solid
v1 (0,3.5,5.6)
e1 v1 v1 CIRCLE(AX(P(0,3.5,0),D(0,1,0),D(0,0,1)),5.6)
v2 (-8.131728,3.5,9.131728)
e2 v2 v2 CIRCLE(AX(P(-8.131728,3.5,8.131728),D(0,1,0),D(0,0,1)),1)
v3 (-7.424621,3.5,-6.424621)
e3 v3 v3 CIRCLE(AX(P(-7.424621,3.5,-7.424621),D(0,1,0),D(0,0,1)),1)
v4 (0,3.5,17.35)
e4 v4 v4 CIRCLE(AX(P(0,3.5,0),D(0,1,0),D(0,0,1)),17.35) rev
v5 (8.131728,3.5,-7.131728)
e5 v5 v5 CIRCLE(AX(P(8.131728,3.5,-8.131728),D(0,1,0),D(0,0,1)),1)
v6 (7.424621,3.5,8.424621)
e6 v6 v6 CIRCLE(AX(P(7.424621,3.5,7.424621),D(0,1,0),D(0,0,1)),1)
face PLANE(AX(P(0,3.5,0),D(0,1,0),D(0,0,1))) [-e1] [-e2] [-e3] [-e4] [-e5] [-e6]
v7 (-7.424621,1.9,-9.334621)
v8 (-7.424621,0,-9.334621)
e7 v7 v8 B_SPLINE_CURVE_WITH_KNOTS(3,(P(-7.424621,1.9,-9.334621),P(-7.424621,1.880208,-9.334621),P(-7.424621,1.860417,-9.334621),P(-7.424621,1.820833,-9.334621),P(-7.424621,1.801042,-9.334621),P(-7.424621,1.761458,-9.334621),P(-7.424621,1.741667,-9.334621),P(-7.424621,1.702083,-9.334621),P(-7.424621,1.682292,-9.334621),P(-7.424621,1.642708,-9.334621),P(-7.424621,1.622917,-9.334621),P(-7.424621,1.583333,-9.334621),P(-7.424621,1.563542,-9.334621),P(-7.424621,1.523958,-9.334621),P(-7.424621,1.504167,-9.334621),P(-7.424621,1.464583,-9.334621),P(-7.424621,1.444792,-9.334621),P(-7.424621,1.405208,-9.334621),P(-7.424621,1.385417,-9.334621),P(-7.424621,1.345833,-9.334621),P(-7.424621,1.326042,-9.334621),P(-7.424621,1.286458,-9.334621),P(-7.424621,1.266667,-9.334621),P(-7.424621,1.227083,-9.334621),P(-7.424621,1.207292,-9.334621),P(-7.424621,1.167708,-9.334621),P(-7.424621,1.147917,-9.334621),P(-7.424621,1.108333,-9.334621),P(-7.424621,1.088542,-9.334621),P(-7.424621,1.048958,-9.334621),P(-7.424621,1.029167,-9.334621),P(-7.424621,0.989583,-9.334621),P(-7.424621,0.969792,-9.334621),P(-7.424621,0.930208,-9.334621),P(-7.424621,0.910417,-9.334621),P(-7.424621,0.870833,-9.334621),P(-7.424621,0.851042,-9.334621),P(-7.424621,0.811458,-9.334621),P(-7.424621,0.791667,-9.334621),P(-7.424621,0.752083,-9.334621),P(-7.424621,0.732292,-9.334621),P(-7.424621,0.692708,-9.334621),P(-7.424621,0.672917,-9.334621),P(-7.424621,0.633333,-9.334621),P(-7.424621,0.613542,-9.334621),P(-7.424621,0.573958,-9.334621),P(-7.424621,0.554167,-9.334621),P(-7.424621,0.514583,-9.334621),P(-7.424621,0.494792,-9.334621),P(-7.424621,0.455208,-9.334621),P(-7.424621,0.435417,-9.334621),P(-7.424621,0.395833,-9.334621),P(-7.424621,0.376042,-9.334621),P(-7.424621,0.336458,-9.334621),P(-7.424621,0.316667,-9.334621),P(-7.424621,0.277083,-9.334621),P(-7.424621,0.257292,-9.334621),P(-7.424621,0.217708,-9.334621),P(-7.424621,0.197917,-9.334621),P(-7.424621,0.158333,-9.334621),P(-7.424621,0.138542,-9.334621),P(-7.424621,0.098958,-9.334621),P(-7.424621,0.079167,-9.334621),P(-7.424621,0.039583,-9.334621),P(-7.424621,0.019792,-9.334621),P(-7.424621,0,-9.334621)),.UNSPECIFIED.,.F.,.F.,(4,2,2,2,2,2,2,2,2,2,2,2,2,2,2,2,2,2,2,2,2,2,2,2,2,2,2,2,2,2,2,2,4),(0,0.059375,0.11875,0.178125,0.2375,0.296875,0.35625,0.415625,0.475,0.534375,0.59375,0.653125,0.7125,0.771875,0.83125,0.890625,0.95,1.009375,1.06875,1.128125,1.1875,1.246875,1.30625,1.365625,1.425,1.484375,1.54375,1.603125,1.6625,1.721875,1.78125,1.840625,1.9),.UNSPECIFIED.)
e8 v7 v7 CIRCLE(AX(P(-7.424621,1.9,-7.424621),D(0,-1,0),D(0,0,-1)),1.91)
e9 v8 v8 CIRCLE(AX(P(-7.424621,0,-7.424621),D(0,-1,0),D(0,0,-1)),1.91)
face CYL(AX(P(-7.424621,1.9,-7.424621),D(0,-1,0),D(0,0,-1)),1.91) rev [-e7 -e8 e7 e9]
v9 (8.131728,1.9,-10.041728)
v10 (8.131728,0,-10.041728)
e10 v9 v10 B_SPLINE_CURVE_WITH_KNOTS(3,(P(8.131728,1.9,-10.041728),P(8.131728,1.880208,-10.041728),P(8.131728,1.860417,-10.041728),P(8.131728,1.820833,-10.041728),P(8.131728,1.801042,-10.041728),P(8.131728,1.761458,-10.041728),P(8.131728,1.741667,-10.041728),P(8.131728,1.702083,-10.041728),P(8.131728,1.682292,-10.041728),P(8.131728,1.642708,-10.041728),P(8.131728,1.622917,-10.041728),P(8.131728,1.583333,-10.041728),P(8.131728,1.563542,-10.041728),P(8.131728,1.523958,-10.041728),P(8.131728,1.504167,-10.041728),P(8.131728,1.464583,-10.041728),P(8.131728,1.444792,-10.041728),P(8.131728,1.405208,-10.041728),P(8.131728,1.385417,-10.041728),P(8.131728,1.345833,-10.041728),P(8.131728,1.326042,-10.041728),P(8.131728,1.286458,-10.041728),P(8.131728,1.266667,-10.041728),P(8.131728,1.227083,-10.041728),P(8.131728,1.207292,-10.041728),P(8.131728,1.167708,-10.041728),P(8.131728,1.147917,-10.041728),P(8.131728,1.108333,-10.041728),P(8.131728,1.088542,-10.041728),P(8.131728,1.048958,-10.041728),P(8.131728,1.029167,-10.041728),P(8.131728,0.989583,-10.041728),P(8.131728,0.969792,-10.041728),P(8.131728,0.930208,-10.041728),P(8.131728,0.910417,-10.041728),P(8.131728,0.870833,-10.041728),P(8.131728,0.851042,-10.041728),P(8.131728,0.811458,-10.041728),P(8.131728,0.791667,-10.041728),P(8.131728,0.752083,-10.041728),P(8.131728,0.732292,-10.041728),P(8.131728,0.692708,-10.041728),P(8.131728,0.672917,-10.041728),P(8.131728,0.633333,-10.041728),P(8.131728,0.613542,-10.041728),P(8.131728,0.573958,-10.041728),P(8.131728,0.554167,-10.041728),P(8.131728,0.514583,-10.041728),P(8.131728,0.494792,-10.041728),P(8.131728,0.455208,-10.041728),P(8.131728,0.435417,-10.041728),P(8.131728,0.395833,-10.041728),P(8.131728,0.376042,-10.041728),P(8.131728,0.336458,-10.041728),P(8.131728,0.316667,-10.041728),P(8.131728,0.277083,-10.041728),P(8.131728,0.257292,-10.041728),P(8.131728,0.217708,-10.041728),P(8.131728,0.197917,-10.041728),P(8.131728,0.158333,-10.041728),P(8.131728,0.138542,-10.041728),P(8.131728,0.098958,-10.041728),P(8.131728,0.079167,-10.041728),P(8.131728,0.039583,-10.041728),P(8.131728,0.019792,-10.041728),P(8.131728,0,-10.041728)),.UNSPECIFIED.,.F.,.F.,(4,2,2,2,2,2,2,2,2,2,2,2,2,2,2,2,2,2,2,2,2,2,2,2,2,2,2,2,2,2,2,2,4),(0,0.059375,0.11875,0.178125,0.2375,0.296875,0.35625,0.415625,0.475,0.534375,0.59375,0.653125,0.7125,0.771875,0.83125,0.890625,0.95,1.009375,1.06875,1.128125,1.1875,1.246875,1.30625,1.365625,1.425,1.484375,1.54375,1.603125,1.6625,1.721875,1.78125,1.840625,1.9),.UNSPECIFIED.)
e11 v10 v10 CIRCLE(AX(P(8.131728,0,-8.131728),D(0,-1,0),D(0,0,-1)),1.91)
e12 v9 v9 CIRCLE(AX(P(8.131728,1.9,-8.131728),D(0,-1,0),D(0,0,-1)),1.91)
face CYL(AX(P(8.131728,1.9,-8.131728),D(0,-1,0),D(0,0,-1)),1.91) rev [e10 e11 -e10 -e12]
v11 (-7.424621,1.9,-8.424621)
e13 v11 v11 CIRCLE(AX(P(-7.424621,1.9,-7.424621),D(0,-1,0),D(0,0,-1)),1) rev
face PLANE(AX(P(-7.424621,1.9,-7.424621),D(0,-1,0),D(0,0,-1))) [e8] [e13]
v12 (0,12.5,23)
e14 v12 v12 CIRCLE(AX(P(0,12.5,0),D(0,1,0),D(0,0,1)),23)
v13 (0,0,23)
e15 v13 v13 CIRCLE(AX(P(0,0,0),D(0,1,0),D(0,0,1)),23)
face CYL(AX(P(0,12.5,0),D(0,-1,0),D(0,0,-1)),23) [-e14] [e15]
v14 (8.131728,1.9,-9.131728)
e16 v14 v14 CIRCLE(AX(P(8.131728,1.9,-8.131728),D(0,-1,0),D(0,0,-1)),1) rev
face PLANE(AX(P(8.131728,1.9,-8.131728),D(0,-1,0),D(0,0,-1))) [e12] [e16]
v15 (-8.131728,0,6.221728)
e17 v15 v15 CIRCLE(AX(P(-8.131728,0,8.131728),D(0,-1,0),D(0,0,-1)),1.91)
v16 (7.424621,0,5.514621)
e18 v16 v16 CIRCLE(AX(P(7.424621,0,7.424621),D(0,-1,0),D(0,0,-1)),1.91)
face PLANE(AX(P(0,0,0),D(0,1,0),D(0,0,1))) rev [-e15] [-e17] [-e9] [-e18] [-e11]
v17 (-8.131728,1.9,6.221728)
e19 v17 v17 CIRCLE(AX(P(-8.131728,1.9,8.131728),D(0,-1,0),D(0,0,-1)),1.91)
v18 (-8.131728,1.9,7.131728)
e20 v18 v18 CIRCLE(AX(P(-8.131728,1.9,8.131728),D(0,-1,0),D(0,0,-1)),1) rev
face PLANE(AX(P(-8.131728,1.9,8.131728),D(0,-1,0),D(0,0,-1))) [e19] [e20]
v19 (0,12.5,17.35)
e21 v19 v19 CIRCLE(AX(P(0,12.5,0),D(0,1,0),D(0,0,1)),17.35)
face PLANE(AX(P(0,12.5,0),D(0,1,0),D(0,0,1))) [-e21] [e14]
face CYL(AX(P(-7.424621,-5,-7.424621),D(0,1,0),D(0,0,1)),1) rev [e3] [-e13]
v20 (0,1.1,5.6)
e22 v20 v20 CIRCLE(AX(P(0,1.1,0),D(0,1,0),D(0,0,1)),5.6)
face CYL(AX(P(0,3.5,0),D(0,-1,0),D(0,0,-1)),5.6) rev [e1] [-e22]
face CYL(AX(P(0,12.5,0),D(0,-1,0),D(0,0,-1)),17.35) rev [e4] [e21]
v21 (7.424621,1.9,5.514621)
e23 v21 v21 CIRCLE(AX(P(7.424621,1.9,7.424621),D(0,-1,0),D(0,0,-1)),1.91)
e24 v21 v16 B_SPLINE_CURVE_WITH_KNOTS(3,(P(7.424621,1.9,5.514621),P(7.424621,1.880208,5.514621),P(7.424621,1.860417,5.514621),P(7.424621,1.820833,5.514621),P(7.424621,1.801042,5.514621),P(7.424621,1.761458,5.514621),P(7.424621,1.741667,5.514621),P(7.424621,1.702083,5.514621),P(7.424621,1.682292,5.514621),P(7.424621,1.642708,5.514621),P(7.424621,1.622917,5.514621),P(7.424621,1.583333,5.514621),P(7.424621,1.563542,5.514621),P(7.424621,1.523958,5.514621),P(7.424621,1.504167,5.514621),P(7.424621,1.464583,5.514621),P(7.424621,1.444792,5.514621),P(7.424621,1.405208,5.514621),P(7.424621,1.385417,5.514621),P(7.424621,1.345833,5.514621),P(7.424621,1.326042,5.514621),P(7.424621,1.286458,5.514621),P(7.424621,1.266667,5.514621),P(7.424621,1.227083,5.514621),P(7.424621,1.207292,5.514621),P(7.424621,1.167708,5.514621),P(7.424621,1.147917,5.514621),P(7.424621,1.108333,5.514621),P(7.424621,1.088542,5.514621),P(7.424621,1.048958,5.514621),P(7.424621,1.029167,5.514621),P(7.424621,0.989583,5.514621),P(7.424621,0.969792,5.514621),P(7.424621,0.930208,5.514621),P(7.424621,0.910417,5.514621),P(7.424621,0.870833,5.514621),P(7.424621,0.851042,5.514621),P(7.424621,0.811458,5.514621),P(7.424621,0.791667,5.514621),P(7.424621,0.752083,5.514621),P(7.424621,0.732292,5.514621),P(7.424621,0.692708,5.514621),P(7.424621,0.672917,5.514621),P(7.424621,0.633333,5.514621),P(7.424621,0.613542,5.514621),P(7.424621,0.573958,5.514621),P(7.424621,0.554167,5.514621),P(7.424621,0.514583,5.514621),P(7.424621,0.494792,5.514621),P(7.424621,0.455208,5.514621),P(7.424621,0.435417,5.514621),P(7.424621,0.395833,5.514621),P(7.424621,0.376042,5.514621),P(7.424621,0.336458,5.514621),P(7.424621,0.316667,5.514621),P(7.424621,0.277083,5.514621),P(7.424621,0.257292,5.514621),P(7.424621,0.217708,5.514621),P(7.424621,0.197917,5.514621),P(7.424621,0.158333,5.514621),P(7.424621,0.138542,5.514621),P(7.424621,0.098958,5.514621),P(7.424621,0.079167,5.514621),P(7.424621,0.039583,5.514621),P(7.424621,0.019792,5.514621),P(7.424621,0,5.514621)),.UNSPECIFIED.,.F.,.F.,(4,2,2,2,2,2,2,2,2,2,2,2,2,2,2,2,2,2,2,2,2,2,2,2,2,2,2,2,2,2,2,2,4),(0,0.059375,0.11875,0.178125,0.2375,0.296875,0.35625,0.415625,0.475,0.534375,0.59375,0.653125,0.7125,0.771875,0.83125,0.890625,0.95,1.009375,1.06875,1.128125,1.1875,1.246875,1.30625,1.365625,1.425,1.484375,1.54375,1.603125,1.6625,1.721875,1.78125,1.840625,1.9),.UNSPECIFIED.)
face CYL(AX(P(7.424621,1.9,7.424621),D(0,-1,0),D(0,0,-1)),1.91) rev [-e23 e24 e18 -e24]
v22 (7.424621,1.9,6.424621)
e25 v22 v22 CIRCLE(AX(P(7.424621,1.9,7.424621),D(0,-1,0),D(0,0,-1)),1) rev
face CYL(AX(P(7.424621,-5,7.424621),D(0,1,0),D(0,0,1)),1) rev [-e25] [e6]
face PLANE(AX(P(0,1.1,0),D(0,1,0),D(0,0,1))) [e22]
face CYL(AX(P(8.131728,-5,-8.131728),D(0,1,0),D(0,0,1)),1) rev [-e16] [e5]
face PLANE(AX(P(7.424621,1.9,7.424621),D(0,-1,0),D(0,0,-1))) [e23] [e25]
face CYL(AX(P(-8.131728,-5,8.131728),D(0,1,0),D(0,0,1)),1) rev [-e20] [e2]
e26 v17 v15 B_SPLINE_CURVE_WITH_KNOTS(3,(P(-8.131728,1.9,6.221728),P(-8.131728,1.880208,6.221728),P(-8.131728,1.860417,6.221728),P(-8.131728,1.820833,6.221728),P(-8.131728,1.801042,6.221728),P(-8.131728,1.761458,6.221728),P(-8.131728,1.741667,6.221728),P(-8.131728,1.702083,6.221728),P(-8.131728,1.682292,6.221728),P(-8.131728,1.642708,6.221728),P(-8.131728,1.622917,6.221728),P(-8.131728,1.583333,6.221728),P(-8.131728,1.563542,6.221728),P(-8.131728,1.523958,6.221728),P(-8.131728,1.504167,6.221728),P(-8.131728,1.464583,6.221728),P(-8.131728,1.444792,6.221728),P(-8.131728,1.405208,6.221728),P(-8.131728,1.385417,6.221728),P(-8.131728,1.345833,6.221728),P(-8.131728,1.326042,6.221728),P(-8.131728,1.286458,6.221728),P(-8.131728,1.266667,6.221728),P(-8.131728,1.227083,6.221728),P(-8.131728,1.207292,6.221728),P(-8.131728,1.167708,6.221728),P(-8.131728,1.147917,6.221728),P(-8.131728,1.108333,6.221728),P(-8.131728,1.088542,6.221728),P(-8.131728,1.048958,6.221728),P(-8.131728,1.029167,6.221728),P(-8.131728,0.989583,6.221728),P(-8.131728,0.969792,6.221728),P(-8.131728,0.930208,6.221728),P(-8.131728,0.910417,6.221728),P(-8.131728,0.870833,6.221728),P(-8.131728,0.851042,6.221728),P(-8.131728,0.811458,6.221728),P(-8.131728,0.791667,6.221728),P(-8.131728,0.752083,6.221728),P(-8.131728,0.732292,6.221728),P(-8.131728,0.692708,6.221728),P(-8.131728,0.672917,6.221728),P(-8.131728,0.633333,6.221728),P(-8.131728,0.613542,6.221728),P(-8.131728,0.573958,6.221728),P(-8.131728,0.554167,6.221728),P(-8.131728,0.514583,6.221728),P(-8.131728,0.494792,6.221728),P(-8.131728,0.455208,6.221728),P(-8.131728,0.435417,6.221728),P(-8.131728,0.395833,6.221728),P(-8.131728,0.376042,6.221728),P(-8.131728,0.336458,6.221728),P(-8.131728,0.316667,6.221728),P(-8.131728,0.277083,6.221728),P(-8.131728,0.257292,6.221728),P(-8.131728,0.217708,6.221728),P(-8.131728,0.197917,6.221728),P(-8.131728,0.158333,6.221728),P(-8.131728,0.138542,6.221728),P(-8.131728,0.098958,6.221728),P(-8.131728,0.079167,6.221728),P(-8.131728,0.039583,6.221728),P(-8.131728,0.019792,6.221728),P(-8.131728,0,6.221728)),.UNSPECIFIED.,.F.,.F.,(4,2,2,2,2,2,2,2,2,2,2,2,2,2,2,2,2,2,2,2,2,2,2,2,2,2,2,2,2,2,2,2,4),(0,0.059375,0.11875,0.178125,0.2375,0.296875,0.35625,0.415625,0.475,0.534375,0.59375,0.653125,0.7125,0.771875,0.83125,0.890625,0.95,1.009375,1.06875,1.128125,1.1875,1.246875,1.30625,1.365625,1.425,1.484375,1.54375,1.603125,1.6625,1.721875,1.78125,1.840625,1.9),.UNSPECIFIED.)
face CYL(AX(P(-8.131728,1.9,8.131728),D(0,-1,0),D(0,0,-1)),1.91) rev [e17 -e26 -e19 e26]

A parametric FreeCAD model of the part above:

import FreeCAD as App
import Part
import Sketcher

V = App.Vector
Q = App.Units.Quantity

doc = App.newDocument("Part")
body = doc.addObject("PartDesign::Body", "Body")

# Sketch on XZ plane
sketch1 = doc.addObject("Sketcher::SketchObject", "Sketch")
body.addObject(sketch1)
sketch1.AttachmentSupport = (doc.XZ_Plane, [""])
sketch1.MapMode = "FlatFace"
sketch1.addGeometry([
    Part.Circle(V(0, 0, 0), V(0, 0, 1), 17.35),
    Part.Circle(V(0, 0, 0), V(0, 0, 1), 5.6),
], False)
sketch1.addConstraint([
    Sketcher.Constraint("Coincident", 0, 3, -1, 1),
    Sketcher.Constraint("Coincident", 1, 3, -1, 1),
    Sketcher.Constraint("Diameter", 0, Q("34.7 mm")),
    Sketcher.Constraint("Diameter", 1, Q("11.2 mm")),
])
pad1 = doc.addObject("PartDesign::Pad", "Pad")
body.addObject(pad1)
pad1.Profile = sketch1
pad1.Length = 3.5
pad1.Reversed = True

# Sketch on XZ plane
sketch2 = doc.addObject("Sketcher::SketchObject", "Sketch001")
body.addObject(sketch2)
sketch2.AttachmentSupport = (doc.XZ_Plane, [""])
sketch2.MapMode = "FlatFace"
sketch2.addGeometry([
    Part.Circle(V(0, 0, 0), V(0, 0, 1), 23),
    Part.Circle(V(0, 0, 0), V(0, 0, 1), 17.35),
], False)
sketch2.addConstraint([
    Sketcher.Constraint("Coincident", 0, 3, -1, 1),
    Sketcher.Constraint("Coincident", 1, 3, -1, 1),
    Sketcher.Constraint("Diameter", 0, Q("46 mm")),
    Sketcher.Constraint("Diameter", 1, Q("34.7 mm")),
])
pad2 = doc.addObject("PartDesign::Pad", "Pad001")
body.addObject(pad2)
pad2.Profile = sketch2
pad2.Length = 12.5
pad2.Reversed = True

# Sketch on XZ plane
sketch3 = doc.addObject("Sketcher::SketchObject", "Sketch002")
body.addObject(sketch3)
sketch3.AttachmentSupport = (doc.XZ_Plane, [""])
sketch3.MapMode = "FlatFace"
sketch3.addGeometry(Part.Circle(V(0, 0, 0), V(0, 0, 1), 5.6), False)
sketch3.addConstraint([
    Sketcher.Constraint("Coincident", 0, 3, -1, 1),
    Sketcher.Constraint("Diameter", 0, Q("11.2 mm")),
])
pad3 = doc.addObject("PartDesign::Pad", "Pad002")
body.addObject(pad3)
pad3.Profile = sketch3
pad3.Length = 1.1
pad3.Reversed = True

# Sketch on XZ plane
sketch4 = doc.addObject("Sketcher::SketchObject", "Sketch003")
body.addObject(sketch4)
sketch4.AttachmentSupport = (doc.XZ_Plane, [""])
sketch4.MapMode = "FlatFace"
sketch4.addGeometry([
    Part.Circle(V(8.131728, -8.131728, 0), V(0, 0, 1), 1),
    Part.Circle(V(7.424621, 7.424621, 0), V(0, 0, 1), 1),
    Part.Circle(V(-8.131728, 8.131728, 0), V(0, 0, 1), 1),
    Part.Circle(V(-7.424621, -7.424621, 0), V(0, 0, 1), 1),
], False)
sketch4.addConstraint([
    Sketcher.Constraint("Equal", 0, 1),
    Sketcher.Constraint("Equal", 1, 2),
    Sketcher.Constraint("Equal", 2, 3),
    Sketcher.Constraint("Symmetric", 0, 3, 2, 3, -1, 1),
    Sketcher.Constraint("Symmetric", 1, 3, 3, 3, -1, 1),
    Sketcher.Constraint("Diameter", 0, Q("2 mm")),
    Sketcher.Constraint("DistanceX", -1, 1, 1, 3, Q("7.424621 mm")),
    Sketcher.Constraint("DistanceY", -1, 1, 1, 3, Q("7.424621 mm")),
    Sketcher.Constraint("DistanceY", 0, 3, 1, 3, Q("15.556349 mm")),
    Sketcher.Constraint("DistanceX", 2, 3, 1, 3, Q("15.556349 mm")),
])
pocket1 = doc.addObject("PartDesign::Pocket", "Pocket")
body.addObject(pocket1)
pocket1.Profile = sketch4
pocket1.Length = 10
pocket1.Midplane = True

# Sketch on XZ plane
sketch5 = doc.addObject("Sketcher::SketchObject", "Sketch004")
body.addObject(sketch5)
sketch5.AttachmentSupport = (doc.XZ_Plane, [""])
sketch5.MapMode = "FlatFace"
sketch5.addGeometry([
    Part.Circle(V(-8.131728, 8.131728, 0), V(0, 0, 1), 1.91),
    Part.Circle(V(7.424621, 7.424621, 0), V(0, 0, 1), 1.91),
    Part.Circle(V(-7.424621, -7.424621, 0), V(0, 0, 1), 1.91),
    Part.Circle(V(8.131728, -8.131728, 0), V(0, 0, 1), 1.91),
], False)
sketch5.addConstraint([
    Sketcher.Constraint("Equal", 0, 1),
    Sketcher.Constraint("Equal", 1, 2),
    Sketcher.Constraint("Equal", 2, 3),
    Sketcher.Constraint("Symmetric", 1, 3, 2, 3, -1, 1),
    Sketcher.Constraint("Symmetric", 0, 3, 3, 3, -1, 1),
    Sketcher.Constraint("Diameter", 0, Q("3.82 mm")),
    Sketcher.Constraint("DistanceX", -1, 1, 1, 3, Q("7.424621 mm")),
    Sketcher.Constraint("DistanceY", -1, 1, 1, 3, Q("7.424621 mm")),
    Sketcher.Constraint("DistanceX", 0, 3, 1, 3, Q("15.556349 mm")),
    Sketcher.Constraint("DistanceY", 2, 3, 0, 3, Q("15.556349 mm")),
])
pocket2 = doc.addObject("PartDesign::Pocket", "Pocket001")
body.addObject(pocket2)
pocket2.Profile = sketch5
pocket2.Length = 1.9

doc.recompute()
